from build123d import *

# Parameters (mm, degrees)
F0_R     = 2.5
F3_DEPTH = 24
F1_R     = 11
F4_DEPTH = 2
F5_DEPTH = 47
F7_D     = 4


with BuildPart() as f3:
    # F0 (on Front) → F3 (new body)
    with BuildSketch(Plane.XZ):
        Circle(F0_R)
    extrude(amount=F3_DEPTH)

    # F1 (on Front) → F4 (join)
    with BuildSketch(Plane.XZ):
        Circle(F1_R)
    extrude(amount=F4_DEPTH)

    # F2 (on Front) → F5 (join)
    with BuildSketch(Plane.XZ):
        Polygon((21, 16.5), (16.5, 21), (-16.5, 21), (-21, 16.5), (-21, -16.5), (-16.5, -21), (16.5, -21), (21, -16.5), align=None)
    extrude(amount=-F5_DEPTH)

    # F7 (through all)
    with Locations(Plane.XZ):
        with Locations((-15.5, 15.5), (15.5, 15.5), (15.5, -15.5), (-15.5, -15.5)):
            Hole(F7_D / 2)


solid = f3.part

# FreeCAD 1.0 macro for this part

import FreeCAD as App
import Part
import Sketcher

doc = App.newDocument("Part")
body = doc.addObject("PartDesign::Body", "Body")

sketch1 = body.newObject("Sketcher::SketchObject", "Sketch")
sketch1.AttachmentSupport = (doc.getObject("XZ_Plane"), [""])
sketch1.MapMode = "FlatFace"
sketch1.addGeometry(Part.Circle(App.Vector(0, 0, 0), App.Vector(0, 0, 1), 2.5), False)
sketch1.addConstraint([
    Sketcher.Constraint("Coincident", 0, 3, -1, 1),
    Sketcher.Constraint("Diameter", 0, 5.0),
])
pad1 = body.newObject("PartDesign::Pad", "Pad")
pad1.Profile = sketch1
pad1.Length = 24

sketch2 = body.newObject("Sketcher::SketchObject", "Sketch001")
sketch2.AttachmentSupport = (doc.getObject("XZ_Plane"), [""])
sketch2.MapMode = "FlatFace"
sketch2.addGeometry(Part.Circle(App.Vector(0, 0, 0), App.Vector(0, 0, 1), 11), False)
sketch2.addConstraint([
    Sketcher.Constraint("Coincident", 0, 3, -1, 1),
    Sketcher.Constraint("Diameter", 0, 22.0),
])
pad2 = body.newObject("PartDesign::Pad", "Pad001")
pad2.Profile = sketch2
pad2.Length = 2

sketch3 = body.newObject("Sketcher::SketchObject", "Sketch002")
sketch3.AttachmentSupport = (doc.getObject("XZ_Plane"), [""])
sketch3.MapMode = "FlatFace"
sketch3.addGeometry([
    Part.LineSegment(App.Vector(21, 16, 0), App.Vector(16, 21, 0)),
    Part.LineSegment(App.Vector(16, 21, 0), App.Vector(-16, 21, 0)),
    Part.LineSegment(App.Vector(-16, 21, 0), App.Vector(-21, 16, 0)),
    Part.LineSegment(App.Vector(-21, 16, 0), App.Vector(-21, -16, 0)),
    Part.LineSegment(App.Vector(-21, -16, 0), App.Vector(-16, -21, 0)),
    Part.LineSegment(App.Vector(-16, -21, 0), App.Vector(16, -21, 0)),
    Part.LineSegment(App.Vector(16, -21, 0), App.Vector(21, -16, 0)),
    Part.LineSegment(App.Vector(21, -16, 0), App.Vector(21, 16, 0)),
], False)
sketch3.addConstraint([
    Sketcher.Constraint("Coincident", 0, 2, 1, 1),
    Sketcher.Constraint("Coincident", 1, 2, 2, 1),
    Sketcher.Constraint("Coincident", 2, 2, 3, 1),
    Sketcher.Constraint("Coincident", 3, 2, 4, 1),
    Sketcher.Constraint("Coincident", 4, 2, 5, 1),
    Sketcher.Constraint("Coincident", 5, 2, 6, 1),
    Sketcher.Constraint("Coincident", 6, 2, 7, 1),
    Sketcher.Constraint("Coincident", 7, 2, 0, 1),
    Sketcher.Constraint("Horizontal", 1),
    Sketcher.Constraint("Vertical", 3),
    Sketcher.Constraint("Horizontal", 5),
    Sketcher.Constraint("Vertical", 7),
    Sketcher.Constraint("Symmetric", 0, 2, 4, 2, -1, 1),
    Sketcher.Constraint("Symmetric", 2, 2, 6, 2, -1, 1),
    Sketcher.Constraint("Perpendicular", 0, 2),
    Sketcher.Constraint("Perpendicular", 2, 4),
    Sketcher.Constraint("Perpendicular", 4, 6),
    Sketcher.Constraint("Horizontal", 3, 2, 6, 2),
    Sketcher.Constraint("Vertical", 1, 2, 4, 2),
    Sketcher.Constraint("Equal", 5, 3),
    Sketcher.Constraint("DistanceX", 1, 2, 1, 1, 33.0),
    Sketcher.Constraint("DistanceY", -1, 1, 0, 2, 21.0),
])
pad3 = body.newObject("PartDesign::Pad", "Pad002")
pad3.Profile = sketch3
pad3.Length = 47
pad3.Reversed = True

sketch4 = body.newObject("Sketcher::SketchObject", "Sketch003")
sketch4.AttachmentSupport = (doc.getObject("XZ_Plane"), [""])
sketch4.MapMode = "FlatFace"
sketch4.addGeometry([
    Part.Circle(App.Vector(-15.5, 15.5, 0), App.Vector(0, 0, 1), 2),
    Part.Circle(App.Vector(15.5, 15.5, 0), App.Vector(0, 0, 1), 2),
    Part.Circle(App.Vector(15.5, -15.5, 0), App.Vector(0, 0, 1), 2),
    Part.Circle(App.Vector(-15.5, -15.5, 0), App.Vector(0, 0, 1), 2),
], False)
sketch4.addConstraint([
    Sketcher.Constraint("Equal", 0, 1),
    Sketcher.Constraint("Equal", 1, 2),
    Sketcher.Constraint("Equal", 2, 3),
    Sketcher.Constraint("Symmetric", 0, 3, 2, 3, -1, 1),
    Sketcher.Constraint("Symmetric", 1, 3, 3, 3, -1, 1),
    Sketcher.Constraint("Symmetric", 0, 3, 1, 3, -2),
    Sketcher.Constraint("Diameter", 0, 4.0),
    Sketcher.Constraint("DistanceX", 0, 3, 1, 3, 31.0),
    Sketcher.Constraint("DistanceY", 2, 3, 1, 3, 31.0),
])
doc.recompute()
hole = body.newObject("PartDesign::Hole", "Hole")
hole.Profile = sketch4
hole.ThreadType = "None"
hole.Diameter = 4
hole.DepthType = "ThroughAll"

doc.recompute()
